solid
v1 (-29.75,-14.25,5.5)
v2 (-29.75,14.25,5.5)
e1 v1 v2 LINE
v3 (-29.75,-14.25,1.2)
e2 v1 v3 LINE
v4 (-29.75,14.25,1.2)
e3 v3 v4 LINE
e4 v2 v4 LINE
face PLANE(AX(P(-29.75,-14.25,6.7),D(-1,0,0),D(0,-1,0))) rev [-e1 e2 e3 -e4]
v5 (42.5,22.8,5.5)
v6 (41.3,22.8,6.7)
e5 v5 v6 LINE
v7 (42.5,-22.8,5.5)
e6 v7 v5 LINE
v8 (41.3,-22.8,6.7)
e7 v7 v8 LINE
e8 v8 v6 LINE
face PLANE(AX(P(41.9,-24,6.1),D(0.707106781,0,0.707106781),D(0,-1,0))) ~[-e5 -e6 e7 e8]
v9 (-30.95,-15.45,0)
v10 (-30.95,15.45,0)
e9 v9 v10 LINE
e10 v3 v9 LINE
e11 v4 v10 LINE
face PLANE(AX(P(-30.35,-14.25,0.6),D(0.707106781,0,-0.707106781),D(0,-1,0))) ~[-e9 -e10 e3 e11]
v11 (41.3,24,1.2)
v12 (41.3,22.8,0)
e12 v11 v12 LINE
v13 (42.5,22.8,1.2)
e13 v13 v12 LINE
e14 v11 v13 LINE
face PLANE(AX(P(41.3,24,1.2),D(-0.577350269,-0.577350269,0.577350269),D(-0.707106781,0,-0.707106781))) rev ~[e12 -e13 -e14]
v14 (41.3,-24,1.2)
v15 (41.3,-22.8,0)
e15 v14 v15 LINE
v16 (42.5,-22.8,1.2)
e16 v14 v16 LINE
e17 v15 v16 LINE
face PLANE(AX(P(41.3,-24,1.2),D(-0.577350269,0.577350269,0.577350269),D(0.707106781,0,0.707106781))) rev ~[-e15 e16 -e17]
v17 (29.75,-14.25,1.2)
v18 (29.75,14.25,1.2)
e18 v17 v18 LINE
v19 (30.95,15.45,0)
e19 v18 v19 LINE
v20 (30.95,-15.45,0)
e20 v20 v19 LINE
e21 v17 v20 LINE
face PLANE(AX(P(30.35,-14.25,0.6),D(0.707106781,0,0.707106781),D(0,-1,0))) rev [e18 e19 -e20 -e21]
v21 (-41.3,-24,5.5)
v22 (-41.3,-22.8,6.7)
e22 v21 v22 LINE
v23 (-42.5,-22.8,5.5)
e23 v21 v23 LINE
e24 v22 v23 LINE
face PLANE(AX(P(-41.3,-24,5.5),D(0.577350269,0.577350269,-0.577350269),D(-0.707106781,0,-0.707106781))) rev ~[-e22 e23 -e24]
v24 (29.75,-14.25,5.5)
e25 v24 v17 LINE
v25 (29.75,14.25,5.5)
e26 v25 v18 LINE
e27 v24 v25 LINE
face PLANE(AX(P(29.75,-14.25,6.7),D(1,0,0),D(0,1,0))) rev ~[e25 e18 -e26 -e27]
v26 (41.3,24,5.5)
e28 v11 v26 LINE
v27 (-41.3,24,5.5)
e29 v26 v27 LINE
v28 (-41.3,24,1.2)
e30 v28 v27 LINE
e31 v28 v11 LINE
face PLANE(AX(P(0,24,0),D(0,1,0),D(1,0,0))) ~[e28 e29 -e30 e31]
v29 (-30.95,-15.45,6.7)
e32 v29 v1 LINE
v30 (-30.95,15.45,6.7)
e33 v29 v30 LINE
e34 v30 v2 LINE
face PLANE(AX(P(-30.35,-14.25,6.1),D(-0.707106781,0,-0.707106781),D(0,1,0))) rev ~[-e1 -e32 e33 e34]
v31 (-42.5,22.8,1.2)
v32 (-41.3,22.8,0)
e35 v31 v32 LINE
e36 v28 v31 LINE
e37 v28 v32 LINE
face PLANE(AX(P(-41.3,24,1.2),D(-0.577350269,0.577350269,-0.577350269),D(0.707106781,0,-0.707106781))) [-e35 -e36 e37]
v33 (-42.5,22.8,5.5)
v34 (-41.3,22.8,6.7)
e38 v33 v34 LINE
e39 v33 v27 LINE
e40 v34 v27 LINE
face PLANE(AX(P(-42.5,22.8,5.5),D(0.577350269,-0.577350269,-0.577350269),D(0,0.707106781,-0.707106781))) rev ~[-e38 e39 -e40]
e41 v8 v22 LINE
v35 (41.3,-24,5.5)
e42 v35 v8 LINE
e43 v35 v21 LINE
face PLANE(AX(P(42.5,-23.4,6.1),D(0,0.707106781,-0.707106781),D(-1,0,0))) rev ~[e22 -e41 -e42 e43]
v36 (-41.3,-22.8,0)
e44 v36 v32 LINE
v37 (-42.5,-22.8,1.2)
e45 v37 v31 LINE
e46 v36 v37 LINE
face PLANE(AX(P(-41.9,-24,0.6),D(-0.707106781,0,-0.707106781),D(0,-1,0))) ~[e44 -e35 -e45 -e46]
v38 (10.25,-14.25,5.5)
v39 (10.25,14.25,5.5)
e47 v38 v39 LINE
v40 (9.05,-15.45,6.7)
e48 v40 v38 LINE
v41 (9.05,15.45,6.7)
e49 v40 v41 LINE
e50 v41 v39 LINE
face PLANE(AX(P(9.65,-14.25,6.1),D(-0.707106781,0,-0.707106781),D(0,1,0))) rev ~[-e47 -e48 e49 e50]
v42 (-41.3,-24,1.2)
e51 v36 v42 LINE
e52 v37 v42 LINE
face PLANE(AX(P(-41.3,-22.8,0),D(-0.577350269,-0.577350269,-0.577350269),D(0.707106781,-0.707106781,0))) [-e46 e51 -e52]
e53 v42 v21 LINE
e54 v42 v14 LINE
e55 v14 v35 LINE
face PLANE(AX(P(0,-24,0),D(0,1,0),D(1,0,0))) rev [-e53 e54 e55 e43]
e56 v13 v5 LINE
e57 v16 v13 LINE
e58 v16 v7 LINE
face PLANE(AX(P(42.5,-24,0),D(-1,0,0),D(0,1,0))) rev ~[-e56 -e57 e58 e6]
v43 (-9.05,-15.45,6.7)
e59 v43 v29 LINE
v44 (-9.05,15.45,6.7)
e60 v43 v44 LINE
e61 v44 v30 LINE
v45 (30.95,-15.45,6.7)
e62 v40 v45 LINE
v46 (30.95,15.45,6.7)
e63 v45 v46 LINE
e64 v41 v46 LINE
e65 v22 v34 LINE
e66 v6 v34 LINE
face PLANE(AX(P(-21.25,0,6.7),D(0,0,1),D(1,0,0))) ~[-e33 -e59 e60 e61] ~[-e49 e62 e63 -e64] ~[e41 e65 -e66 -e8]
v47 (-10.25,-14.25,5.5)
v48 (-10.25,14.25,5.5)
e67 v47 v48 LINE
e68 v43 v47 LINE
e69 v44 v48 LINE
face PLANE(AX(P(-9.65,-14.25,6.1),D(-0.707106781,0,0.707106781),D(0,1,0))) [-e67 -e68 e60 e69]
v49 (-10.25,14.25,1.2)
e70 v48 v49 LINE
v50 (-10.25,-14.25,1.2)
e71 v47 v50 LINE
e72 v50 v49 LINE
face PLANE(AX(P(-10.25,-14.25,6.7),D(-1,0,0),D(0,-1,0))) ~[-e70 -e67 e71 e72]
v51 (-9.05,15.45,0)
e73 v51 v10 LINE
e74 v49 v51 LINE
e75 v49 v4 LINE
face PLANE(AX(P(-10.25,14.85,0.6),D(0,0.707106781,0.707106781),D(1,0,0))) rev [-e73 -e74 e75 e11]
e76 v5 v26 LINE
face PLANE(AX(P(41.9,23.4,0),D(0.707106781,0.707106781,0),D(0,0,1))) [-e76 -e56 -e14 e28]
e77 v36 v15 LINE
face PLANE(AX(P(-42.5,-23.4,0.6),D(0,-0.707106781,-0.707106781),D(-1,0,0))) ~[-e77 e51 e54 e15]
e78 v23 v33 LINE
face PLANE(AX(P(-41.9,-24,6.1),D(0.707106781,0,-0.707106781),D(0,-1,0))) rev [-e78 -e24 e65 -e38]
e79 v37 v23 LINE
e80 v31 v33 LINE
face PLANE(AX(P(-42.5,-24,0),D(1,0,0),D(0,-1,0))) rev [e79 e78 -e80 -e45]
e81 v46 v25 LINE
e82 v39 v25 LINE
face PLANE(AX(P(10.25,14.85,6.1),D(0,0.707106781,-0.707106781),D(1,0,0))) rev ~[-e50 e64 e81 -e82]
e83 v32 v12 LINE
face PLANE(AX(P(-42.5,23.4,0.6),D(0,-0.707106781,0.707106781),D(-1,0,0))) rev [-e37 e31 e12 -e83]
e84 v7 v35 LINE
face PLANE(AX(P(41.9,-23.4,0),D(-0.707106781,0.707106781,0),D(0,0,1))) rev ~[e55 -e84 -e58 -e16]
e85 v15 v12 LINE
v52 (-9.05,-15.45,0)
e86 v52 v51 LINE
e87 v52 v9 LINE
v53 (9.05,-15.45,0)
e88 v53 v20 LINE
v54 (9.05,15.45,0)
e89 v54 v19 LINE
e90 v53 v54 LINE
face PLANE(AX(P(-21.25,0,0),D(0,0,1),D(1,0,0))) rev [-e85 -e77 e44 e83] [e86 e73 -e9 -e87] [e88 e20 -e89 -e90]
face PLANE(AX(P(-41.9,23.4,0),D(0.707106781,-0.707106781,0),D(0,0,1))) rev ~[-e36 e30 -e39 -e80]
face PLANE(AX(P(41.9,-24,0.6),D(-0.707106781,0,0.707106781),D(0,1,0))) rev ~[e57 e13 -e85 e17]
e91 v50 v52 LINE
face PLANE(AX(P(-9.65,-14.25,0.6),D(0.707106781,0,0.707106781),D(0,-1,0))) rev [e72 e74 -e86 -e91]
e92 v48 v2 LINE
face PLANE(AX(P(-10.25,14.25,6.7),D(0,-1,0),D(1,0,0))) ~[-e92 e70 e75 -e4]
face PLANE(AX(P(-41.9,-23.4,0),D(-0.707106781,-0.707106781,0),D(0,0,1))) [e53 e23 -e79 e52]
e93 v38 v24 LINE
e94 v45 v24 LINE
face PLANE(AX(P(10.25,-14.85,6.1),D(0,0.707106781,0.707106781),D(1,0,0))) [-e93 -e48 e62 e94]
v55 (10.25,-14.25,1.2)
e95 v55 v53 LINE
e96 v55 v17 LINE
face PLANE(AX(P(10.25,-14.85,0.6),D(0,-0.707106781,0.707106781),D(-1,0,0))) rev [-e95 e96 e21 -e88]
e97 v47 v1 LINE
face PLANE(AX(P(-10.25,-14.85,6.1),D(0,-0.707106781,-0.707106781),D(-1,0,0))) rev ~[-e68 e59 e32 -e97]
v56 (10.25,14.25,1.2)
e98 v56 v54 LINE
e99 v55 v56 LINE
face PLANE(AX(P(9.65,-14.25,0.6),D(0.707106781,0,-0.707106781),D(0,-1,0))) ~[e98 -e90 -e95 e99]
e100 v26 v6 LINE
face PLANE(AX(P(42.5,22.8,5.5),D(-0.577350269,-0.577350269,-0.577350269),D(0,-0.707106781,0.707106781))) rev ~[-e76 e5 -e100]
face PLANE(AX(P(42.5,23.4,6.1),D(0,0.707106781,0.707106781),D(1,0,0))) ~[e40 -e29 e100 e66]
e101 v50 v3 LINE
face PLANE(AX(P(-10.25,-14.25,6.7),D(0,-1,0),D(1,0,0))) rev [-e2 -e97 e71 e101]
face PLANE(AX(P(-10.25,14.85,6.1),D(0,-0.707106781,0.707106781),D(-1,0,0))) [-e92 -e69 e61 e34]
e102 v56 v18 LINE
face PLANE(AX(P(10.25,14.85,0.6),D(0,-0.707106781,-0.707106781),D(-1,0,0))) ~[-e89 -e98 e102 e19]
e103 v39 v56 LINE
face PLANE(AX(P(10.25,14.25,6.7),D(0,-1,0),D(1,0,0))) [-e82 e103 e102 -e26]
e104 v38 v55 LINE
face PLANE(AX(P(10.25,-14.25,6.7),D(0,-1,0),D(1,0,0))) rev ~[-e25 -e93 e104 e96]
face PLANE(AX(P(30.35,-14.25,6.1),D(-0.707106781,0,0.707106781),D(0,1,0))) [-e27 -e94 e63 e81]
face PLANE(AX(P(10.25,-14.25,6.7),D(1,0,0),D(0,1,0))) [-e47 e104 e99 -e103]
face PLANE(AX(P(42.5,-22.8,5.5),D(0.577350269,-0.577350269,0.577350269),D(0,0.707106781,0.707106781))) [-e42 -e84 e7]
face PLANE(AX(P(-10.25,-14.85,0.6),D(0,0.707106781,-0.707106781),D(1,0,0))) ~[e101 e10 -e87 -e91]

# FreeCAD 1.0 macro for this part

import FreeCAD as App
import Part
import Sketcher

V = App.Vector


def edges_at(feature, points):
    """Names of the edges that pass closest to the given points."""
    edges = feature.Shape.Edges
    near = lambda p: min(range(len(edges)), key=lambda i: edges[i].distToShape(Part.Vertex(*p))[0])
    return sorted({f"Edge{near(p) + 1}" for p in points})


def add_polygon(sketch, points):
    """Adds a closed chain of lines whose ends are joined by coincident constraints."""
    first, n = sketch.GeometryCount, len(points)
    for a, b in zip(points, points[1:] + points[:1]):
        sketch.addGeometry(Part.LineSegment(App.Vector(*a, 0), App.Vector(*b, 0)), False)
    for i in range(n):
        sketch.addConstraint(Sketcher.Constraint("Coincident", first + i, 2, first + (i + 1) % n, 1))

doc = App.newDocument("Part")
body = doc.addObject("PartDesign::Body", "Body")

# Sketch on XY plane
sketch1 = doc.addObject("Sketcher::SketchObject", "Sketch")
body.addObject(sketch1)
sketch1.AttachmentSupport = (doc.XY_Plane, [""])
sketch1.MapMode = "FlatFace"
add_polygon(sketch1, [(0, 24), (0, -24), (42, -24), (42, 24)])  # lines 0-3
sketch1.addConstraint([
    Sketcher.Constraint("Vertical", 0),
    Sketcher.Constraint("Horizontal", 1),
    Sketcher.Constraint("Vertical", 2),
    Sketcher.Constraint("Horizontal", 3),
    Sketcher.Constraint("Symmetric", 0, 2, 3, 2, -1, 1),
    Sketcher.Constraint("DistanceY", 0, 2, 0, 1, 48.0),
    Sketcher.Constraint("DistanceX", 1, 1, 1, 2, 42.5),
])
pad1 = doc.addObject("PartDesign::Pad", "Pad")
body.addObject(pad1)
pad1.Profile = sketch1
pad1.Length = 6.7

# Sketch on XY plane
sketch2 = doc.addObject("Sketcher::SketchObject", "Sketch001")
body.addObject(sketch2)
sketch2.AttachmentSupport = (doc.XY_Plane, [""])
sketch2.MapMode = "FlatFace"
sketch2.AttachmentOffset = App.Placement(V(0, 0, 6.7), App.Rotation())
add_polygon(sketch2, [(10, 14), (10, -14), (30, -14), (30, 14)])  # lines 0-3
sketch2.addConstraint([
    Sketcher.Constraint("Vertical", 0),
    Sketcher.Constraint("Horizontal", 1),
    Sketcher.Constraint("Vertical", 2),
    Sketcher.Constraint("Horizontal", 3),
    Sketcher.Constraint("DistanceX", 1, 1, 1, 2, 19.5),
    Sketcher.Constraint("DistanceY", 0, 2, 0, 1, 28.5),
    Sketcher.Constraint("DistanceX", -1, 1, 0, 2, 10.25),
    Sketcher.Constraint("DistanceY", 0, 2, -1, 1, 14.25),
])
pocket1 = doc.addObject("PartDesign::Pocket", "Pocket")
body.addObject(pocket1)
pocket1.Profile = sketch2
pocket1.Length = 25
body2 = doc.addObject("PartDesign::Body", "Body001")
doc.recompute()

body2.BaseFeature = body
doc.recompute()

mirroring = doc.addObject("Part::Mirroring", "Mirroring")
mirroring.Source = body
mirroring.Base = V(0, 0, 0)
mirroring.Normal = V(1, 0, 0)
body3 = doc.addObject("PartDesign::Body", "Body002")
body3.BaseFeature = mirroring
boolean = doc.addObject("PartDesign::Boolean", "Boolean")
body2.addObject(boolean)
boolean.Type = "Fuse"
boolean.addObjects([body3])
doc.recompute()

chamfer = doc.addObject("PartDesign::Chamfer", "Chamfer")
body2.addObject(chamfer)
chamfer.Base = (boolean, edges_at(boolean, [
    (0, 24, 6.7),
    (-42.5, 0, 6.7),
    (0, -24, 6.7),
    (42.5, 0, 0),
    (29.75, 0, 6.7),
    (10.25, 0, 6.7),
    (-10.25, 0, 6.7),
    (-29.75, 0, 6.7),
    (-20, 14.25, 6.7),
    (-20, -14.25, 6.7),
    (20, -14.25, 6.7),
    (20, 14.25, 6.7),
    (-42.5, -24, 3.35),
    (-42.5, 0, 0),
    (-42.5, 24, 3.35),
    (0, -24, 0),
    (-20, -14.25, 0),
    (-10.25, 0, 0),
    (-20, 14.25, 0),
    (-29.75, 0, 0),
    (10.25, 0, 0),
    (29.75, 0, 0),
    (20, 14.25, 0),
    (20, -14.25, 0),
    (42.5, 24, 3.35),
    (42.5, -24, 3.35),
    (42.5, 0, 6.7),
    (0, 24, 0),
]))
chamfer.Size = 1.2
mirroring.Visibility = False

doc.recompute()
